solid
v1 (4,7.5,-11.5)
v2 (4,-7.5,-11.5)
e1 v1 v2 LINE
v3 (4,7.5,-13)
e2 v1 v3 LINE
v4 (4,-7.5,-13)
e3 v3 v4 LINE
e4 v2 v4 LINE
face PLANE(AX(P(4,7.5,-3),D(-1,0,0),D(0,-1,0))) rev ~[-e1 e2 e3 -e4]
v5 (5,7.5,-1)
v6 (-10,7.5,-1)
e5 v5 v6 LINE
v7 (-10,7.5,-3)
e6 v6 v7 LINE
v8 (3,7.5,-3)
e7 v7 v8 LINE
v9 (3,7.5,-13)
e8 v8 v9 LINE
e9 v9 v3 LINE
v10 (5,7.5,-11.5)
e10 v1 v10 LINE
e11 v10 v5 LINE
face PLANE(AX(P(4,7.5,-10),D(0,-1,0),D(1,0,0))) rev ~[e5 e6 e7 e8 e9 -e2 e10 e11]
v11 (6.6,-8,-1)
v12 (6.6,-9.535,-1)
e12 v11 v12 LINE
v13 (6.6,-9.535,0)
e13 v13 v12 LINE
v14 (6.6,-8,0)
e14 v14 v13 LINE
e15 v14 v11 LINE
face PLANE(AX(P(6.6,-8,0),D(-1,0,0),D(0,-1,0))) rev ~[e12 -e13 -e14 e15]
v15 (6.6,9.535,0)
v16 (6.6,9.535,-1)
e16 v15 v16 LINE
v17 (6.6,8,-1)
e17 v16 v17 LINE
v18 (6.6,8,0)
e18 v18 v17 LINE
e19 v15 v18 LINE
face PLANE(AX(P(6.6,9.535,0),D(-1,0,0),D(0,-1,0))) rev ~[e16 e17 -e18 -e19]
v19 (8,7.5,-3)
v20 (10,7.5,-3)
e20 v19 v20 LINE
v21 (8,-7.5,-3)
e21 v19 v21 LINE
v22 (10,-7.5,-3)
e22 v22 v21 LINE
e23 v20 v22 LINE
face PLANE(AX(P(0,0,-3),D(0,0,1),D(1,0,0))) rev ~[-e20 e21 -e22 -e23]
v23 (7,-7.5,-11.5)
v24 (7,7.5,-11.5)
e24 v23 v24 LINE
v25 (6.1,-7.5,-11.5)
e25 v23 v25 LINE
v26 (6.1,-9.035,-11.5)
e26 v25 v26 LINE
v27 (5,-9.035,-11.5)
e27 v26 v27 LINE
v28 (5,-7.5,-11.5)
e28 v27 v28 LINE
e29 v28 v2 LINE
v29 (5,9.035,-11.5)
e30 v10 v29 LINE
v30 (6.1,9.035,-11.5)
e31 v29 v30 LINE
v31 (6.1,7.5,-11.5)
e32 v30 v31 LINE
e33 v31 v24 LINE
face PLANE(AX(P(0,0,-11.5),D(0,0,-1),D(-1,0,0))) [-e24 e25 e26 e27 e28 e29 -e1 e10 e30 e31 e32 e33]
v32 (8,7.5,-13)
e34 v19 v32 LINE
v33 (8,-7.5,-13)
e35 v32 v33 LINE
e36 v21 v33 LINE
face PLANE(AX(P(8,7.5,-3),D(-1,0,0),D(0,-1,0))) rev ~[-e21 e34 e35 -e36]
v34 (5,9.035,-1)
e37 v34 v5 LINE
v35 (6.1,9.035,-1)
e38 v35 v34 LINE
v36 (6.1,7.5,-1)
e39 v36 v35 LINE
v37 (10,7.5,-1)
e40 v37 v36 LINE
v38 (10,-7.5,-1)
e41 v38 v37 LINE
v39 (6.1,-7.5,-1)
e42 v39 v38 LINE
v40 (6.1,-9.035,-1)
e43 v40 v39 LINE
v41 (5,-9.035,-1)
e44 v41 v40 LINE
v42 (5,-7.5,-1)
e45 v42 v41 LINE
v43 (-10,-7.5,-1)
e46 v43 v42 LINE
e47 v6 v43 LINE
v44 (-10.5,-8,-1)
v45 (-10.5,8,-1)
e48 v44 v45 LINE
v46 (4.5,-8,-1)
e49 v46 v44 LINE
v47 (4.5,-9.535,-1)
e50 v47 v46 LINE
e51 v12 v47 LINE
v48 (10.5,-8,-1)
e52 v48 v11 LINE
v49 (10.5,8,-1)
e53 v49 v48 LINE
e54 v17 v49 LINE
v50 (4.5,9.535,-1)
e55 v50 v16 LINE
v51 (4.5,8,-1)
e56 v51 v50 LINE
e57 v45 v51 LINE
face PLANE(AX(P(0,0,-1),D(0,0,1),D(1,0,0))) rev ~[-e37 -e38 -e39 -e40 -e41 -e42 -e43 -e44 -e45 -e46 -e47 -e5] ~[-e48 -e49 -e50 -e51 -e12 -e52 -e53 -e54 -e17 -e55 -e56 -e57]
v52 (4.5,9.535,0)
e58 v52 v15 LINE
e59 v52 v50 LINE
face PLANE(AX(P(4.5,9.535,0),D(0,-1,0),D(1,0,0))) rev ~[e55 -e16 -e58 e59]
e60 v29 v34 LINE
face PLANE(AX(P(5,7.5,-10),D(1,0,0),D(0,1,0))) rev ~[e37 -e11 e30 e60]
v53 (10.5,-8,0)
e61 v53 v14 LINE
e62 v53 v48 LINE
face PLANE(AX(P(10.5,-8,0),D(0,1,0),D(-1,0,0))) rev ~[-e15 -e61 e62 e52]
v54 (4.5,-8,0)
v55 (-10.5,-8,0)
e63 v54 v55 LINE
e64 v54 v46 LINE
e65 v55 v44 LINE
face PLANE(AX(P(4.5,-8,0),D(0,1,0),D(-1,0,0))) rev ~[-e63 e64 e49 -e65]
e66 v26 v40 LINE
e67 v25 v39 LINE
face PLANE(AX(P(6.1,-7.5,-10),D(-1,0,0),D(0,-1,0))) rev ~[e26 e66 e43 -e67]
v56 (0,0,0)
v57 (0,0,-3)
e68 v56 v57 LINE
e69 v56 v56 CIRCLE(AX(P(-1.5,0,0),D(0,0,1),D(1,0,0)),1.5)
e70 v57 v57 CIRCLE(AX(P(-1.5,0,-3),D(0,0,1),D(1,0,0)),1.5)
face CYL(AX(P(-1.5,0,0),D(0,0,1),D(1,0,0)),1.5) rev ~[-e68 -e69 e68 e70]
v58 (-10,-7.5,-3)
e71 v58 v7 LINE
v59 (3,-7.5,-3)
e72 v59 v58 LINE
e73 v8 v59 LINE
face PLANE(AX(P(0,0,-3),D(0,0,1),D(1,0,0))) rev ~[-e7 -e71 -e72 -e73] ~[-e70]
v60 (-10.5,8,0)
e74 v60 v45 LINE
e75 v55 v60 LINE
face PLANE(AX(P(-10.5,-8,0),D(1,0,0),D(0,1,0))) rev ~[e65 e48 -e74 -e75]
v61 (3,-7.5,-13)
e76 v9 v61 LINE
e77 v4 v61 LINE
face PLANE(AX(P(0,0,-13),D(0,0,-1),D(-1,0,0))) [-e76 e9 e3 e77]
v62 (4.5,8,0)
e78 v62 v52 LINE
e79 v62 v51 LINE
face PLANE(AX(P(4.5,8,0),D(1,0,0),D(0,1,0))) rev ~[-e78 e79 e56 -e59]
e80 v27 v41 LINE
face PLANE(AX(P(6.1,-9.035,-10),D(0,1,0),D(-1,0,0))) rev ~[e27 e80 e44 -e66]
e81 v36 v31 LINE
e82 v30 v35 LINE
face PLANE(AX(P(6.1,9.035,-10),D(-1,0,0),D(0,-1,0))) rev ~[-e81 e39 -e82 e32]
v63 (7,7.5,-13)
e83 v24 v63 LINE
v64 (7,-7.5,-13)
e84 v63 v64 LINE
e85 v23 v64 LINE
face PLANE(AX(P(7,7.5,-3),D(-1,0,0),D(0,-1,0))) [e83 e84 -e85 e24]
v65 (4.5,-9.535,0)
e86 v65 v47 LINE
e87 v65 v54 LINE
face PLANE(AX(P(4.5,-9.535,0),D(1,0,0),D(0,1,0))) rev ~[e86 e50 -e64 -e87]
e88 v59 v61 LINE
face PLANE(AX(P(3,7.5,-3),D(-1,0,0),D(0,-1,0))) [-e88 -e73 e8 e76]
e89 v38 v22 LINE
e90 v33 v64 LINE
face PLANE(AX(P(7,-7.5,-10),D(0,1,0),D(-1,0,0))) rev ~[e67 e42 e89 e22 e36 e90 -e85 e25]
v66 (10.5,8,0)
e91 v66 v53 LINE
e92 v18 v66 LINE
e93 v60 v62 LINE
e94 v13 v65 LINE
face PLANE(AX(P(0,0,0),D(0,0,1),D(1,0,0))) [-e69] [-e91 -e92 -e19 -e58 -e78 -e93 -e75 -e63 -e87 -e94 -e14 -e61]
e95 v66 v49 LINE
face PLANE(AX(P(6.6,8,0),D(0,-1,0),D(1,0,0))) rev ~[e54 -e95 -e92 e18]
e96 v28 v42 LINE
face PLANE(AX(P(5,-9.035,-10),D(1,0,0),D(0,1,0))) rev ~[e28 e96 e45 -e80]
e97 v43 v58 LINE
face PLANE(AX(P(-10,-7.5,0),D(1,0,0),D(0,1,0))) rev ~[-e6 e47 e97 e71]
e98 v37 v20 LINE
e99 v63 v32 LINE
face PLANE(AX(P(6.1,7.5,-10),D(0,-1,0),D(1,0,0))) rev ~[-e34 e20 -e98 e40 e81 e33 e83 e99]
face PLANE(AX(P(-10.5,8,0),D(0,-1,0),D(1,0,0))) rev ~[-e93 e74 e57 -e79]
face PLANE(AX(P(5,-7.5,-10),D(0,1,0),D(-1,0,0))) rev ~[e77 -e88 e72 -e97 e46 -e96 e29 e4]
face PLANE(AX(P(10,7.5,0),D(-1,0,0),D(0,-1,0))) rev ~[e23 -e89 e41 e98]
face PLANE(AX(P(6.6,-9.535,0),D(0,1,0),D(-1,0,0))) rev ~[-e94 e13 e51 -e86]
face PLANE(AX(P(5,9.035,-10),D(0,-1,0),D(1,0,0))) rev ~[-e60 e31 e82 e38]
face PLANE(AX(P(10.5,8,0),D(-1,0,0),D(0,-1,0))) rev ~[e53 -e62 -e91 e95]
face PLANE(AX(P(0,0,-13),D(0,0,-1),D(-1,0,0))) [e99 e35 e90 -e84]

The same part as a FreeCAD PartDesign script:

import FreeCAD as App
import Part
import Sketcher
Q = App.Units.Quantity

doc = App.newDocument("Part")
params = doc.addObject("Spreadsheet::Sheet", "Params")
for row, (alias, value) in enumerate([
    ("sketch1_diameter", "3 mm"),
    ("sketch1_width", "20 mm"),
    ("sketch1_height", "15 mm"),
    ("pad1_length", "3 mm"),
    ("sketch2_width", "1 mm"),
    ("sketch2_height", "15 mm"),
    ("pad2_length", "10 mm"),
    ("sketch3_width", "3 mm"),
    ("sketch3_height", "15 mm"),
    ("pad3_length", "7 mm"),
    ("sketch4_width", "1.1 mm"),
    ("sketch4_height", "18.07 mm"),
    ("pad4_length", "10 mm"),
    ("sketch5_width", "15 mm"),
    ("sketch5_width2", "3.9 mm"),
    ("sketch5_width3", "2.1 mm"),
    ("pad5_length", "1 mm"),
    ("sketch6_width", "1 mm"),
    ("sketch6_height", "15 mm"),
    ("sketch6_width2", "0.9 mm"),
    ("sketch6_width3", "1.1 mm"),
    ("pad6_length", "1.5 mm"),
], start=1):
    params.set(f"A{row}", alias)
    params.set(f"B{row}", "=" + value)
    params.setAlias(f"B{row}", alias)

body = doc.addObject("PartDesign::Body", "Body")

# Sketch on XY plane
sketch1 = body.newObject("Sketcher::SketchObject", "Sketch")
sketch1.AttachmentSupport = (doc.getObject("XY_Plane"), [""])
sketch1.MapMode = "FlatFace"
sketch1.addGeometry([
    Part.LineSegment(App.Vector(10, 7.5, 0), App.Vector(-10, 7.5, 0)),  # 0
    Part.LineSegment(App.Vector(-10, 7.5, 0), App.Vector(-10, -7.5, 0)),  # 1
    Part.LineSegment(App.Vector(-10, -7.5, 0), App.Vector(10, -7.5, 0)),  # 2
    Part.LineSegment(App.Vector(10, -7.5, 0), App.Vector(10, 7.5, 0)),  # 3
    Part.Circle(App.Vector(-1.5, 0, 0), App.Vector(0, 0, 1), 1.5),  # 4
], False)
sketch1.addConstraint([
    Sketcher.Constraint("Coincident", 0, 2, 1, 1),
    Sketcher.Constraint("Coincident", 1, 2, 2, 1),
    Sketcher.Constraint("Coincident", 2, 2, 3, 1),
    Sketcher.Constraint("Coincident", 3, 2, 0, 1),
    Sketcher.Constraint("Horizontal", 0),
    Sketcher.Constraint("Vertical", 1),
    Sketcher.Constraint("Horizontal", 2),
    Sketcher.Constraint("Vertical", 3),
    Sketcher.Constraint("Symmetric", 0, 2, 2, 2, -1, 1),
    Sketcher.Constraint("PointOnObject", 4, 3, -1),
    Sketcher.Constraint("Diameter", 4, Q("3 mm")),
    Sketcher.Constraint("DistanceX", 0, 2, 0, 1, Q("20 mm")),
    Sketcher.Constraint("DistanceY", 1, 2, 1, 1, Q("15 mm")),
    Sketcher.Constraint("DistanceX", 4, 3, -1, 1, Q("1.5 mm")),
])
sketch1.setExpression("Constraints[10]", "Params.sketch1_diameter")
sketch1.setExpression("Constraints[11]", "Params.sketch1_width")
sketch1.setExpression("Constraints[12]", "Params.sketch1_height")
pad1 = body.newObject("PartDesign::Pad", "Pad")
pad1.Profile = sketch1
pad1.setExpression("Length", "Params.pad1_length")
pad1.Reversed = True

# Sketch on XY plane
sketch2 = body.newObject("Sketcher::SketchObject", "Sketch001")
sketch2.AttachmentSupport = (doc.getObject("XY_Plane"), [""])
sketch2.MapMode = "FlatFace"
sketch2.AttachmentOffset = App.Placement(App.Vector(0, 0, -3), App.Rotation())
sketch2.addGeometry([
    Part.LineSegment(App.Vector(3, -7.5, 0), App.Vector(3, 7.5, 0)),  # 0
    Part.LineSegment(App.Vector(3, 7.5, 0), App.Vector(4, 7.5, 0)),  # 1
    Part.LineSegment(App.Vector(4, 7.5, 0), App.Vector(4, -7.5, 0)),  # 2
    Part.LineSegment(App.Vector(4, -7.5, 0), App.Vector(3, -7.5, 0)),  # 3
    Part.LineSegment(App.Vector(7, -7.5, 0), App.Vector(7, 7.5, 0)),  # 4
    Part.LineSegment(App.Vector(7, 7.5, 0), App.Vector(8, 7.5, 0)),  # 5
    Part.LineSegment(App.Vector(8, 7.5, 0), App.Vector(8, -7.5, 0)),  # 6
    Part.LineSegment(App.Vector(8, -7.5, 0), App.Vector(7, -7.5, 0)),  # 7
], False)
sketch2.addConstraint([
    Sketcher.Constraint("Coincident", 0, 2, 1, 1),
    Sketcher.Constraint("Coincident", 1, 2, 2, 1),
    Sketcher.Constraint("Coincident", 2, 2, 3, 1),
    Sketcher.Constraint("Coincident", 3, 2, 0, 1),
    Sketcher.Constraint("Coincident", 4, 2, 5, 1),
    Sketcher.Constraint("Coincident", 5, 2, 6, 1),
    Sketcher.Constraint("Coincident", 6, 2, 7, 1),
    Sketcher.Constraint("Coincident", 7, 2, 4, 1),
    Sketcher.Constraint("Vertical", 0),
    Sketcher.Constraint("Horizontal", 1),
    Sketcher.Constraint("Vertical", 2),
    Sketcher.Constraint("Horizontal", 3),
    Sketcher.Constraint("Vertical", 4),
    Sketcher.Constraint("Horizontal", 5),
    Sketcher.Constraint("Vertical", 6),
    Sketcher.Constraint("Horizontal", 7),
    Sketcher.Constraint("Horizontal", 1, 2, 4, 2),
    Sketcher.Constraint("Horizontal", 3, 2, 6, 2),
    Sketcher.Constraint("Equal", 3, 5),
    Sketcher.Constraint("DistanceX", 1, 1, 1, 2, Q("1 mm")),
    Sketcher.Constraint("DistanceX", -1, 1, 0, 2, Q("3 mm")),
    Sketcher.Constraint("DistanceX", -1, 1, 4, 2, Q("7 mm")),
    Sketcher.Constraint("DistanceY", 0, 1, 0, 2, Q("15 mm")),
    Sketcher.Constraint("DistanceY", -1, 1, 0, 2, Q("7.5 mm")),
])
sketch2.setExpression("Constraints[19]", "Params.sketch2_width")
sketch2.setExpression("Constraints[22]", "Params.sketch2_height")
pad2 = body.newObject("PartDesign::Pad", "Pad001")
pad2.Profile = sketch2
pad2.setExpression("Length", "Params.pad2_length")
pad2.Reversed = True

# Sketch on XY plane
sketch3 = body.newObject("Sketcher::SketchObject", "Sketch002")
sketch3.AttachmentSupport = (doc.getObject("XY_Plane"), [""])
sketch3.MapMode = "FlatFace"
sketch3.AttachmentOffset = App.Placement(App.Vector(0, 0, -3), App.Rotation())
sketch3.addGeometry([
    Part.LineSegment(App.Vector(4, 7.5, 0), App.Vector(7, 7.5, 0)),
    Part.LineSegment(App.Vector(7, 7.5, 0), App.Vector(7, -7.5, 0)),
    Part.LineSegment(App.Vector(7, -7.5, 0), App.Vector(4, -7.5, 0)),
    Part.LineSegment(App.Vector(4, -7.5, 0), App.Vector(4, 7.5, 0)),
], False)
sketch3.addConstraint([
    Sketcher.Constraint("Coincident", 0, 2, 1, 1),
    Sketcher.Constraint("Coincident", 1, 2, 2, 1),
    Sketcher.Constraint("Coincident", 2, 2, 3, 1),
    Sketcher.Constraint("Coincident", 3, 2, 0, 1),
    Sketcher.Constraint("Horizontal", 0),
    Sketcher.Constraint("Vertical", 1),
    Sketcher.Constraint("Horizontal", 2),
    Sketcher.Constraint("Vertical", 3),
    Sketcher.Constraint("DistanceX", 0, 1, 0, 2, Q("3 mm")),
    Sketcher.Constraint("DistanceY", 1, 2, 1, 1, Q("15 mm")),
    Sketcher.Constraint("DistanceX", -1, 1, 0, 2, Q("7 mm")),
    Sketcher.Constraint("DistanceY", -1, 1, 0, 2, Q("7.5 mm")),
])
sketch3.setExpression("Constraints[8]", "Params.sketch3_width")
sketch3.setExpression("Constraints[9]", "Params.sketch3_height")
pad3 = body.newObject("PartDesign::Pad", "Pad002")
pad3.Profile = sketch3
pad3.setExpression("Length", "Params.pad3_length")
pad3.Reversed = True

# Sketch on XY plane
sketch4 = body.newObject("Sketcher::SketchObject", "Sketch003")
sketch4.AttachmentSupport = (doc.getObject("XY_Plane"), [""])
sketch4.MapMode = "FlatFace"
sketch4.AttachmentOffset = App.Placement(App.Vector(0, 0, -10), App.Rotation())
sketch4.addGeometry([
    Part.LineSegment(App.Vector(6.1, -9, 0), App.Vector(5, -9, 0)),
    Part.LineSegment(App.Vector(5, -9, 0), App.Vector(5, 9, 0)),
    Part.LineSegment(App.Vector(5, 9, 0), App.Vector(6.1, 9, 0)),
    Part.LineSegment(App.Vector(6.1, 9, 0), App.Vector(6.1, -9, 0)),
], False)
sketch4.addConstraint([
    Sketcher.Constraint("Coincident", 0, 2, 1, 1),
    Sketcher.Constraint("Coincident", 1, 2, 2, 1),
    Sketcher.Constraint("Coincident", 2, 2, 3, 1),
    Sketcher.Constraint("Coincident", 3, 2, 0, 1),
    Sketcher.Constraint("Horizontal", 0),
    Sketcher.Constraint("Vertical", 1),
    Sketcher.Constraint("Horizontal", 2),
    Sketcher.Constraint("Vertical", 3),
    Sketcher.Constraint("DistanceX", 0, 2, 0, 1, Q("1.1 mm")),
    Sketcher.Constraint("DistanceX", -1, 1, 0, 2, Q("5 mm")),
    Sketcher.Constraint("DistanceY", 1, 1, 1, 2, Q("18.07 mm")),
    Sketcher.Constraint("DistanceY", 0, 2, -1, 1, Q("9.035 mm")),
])
sketch4.setExpression("Constraints[8]", "Params.sketch4_width")
sketch4.setExpression("Constraints[10]", "Params.sketch4_height")
pad4 = body.newObject("PartDesign::Pad", "Pad003")
pad4.Profile = sketch4
pad4.setExpression("Length", "Params.pad4_length")

# Sketch on XY plane
sketch5 = body.newObject("Sketcher::SketchObject", "Sketch004")
sketch5.AttachmentSupport = (doc.getObject("XY_Plane"), [""])
sketch5.MapMode = "FlatFace"
sketch5.addGeometry([
    Part.LineSegment(App.Vector(10.5, -8, 0), App.Vector(10.5, 8, 0)),  # 0
    Part.LineSegment(App.Vector(10.5, 8, 0), App.Vector(6.6, 8, 0)),  # 1
    Part.LineSegment(App.Vector(6.6, 8, 0), App.Vector(6.6, 9.5, 0)),  # 2
    Part.LineSegment(App.Vector(6.6, 9.5, 0), App.Vector(4.5, 9.5, 0)),  # 3
    Part.LineSegment(App.Vector(4.5, 9.5, 0), App.Vector(4.5, 8, 0)),  # 4
    Part.LineSegment(App.Vector(4.5, 8, 0), App.Vector(-10.5, 8, 0)),  # 5
    Part.LineSegment(App.Vector(-10.5, 8, 0), App.Vector(-10.5, -8, 0)),  # 6
    Part.LineSegment(App.Vector(-10.5, -8, 0), App.Vector(4.5, -8, 0)),  # 7
    Part.LineSegment(App.Vector(4.5, -8, 0), App.Vector(4.5, -9.5, 0)),  # 8
    Part.LineSegment(App.Vector(4.5, -9.5, 0), App.Vector(6.6, -9.5, 0)),  # 9
    Part.LineSegment(App.Vector(6.6, -9.5, 0), App.Vector(6.6, -8, 0)),  # 10
    Part.LineSegment(App.Vector(6.6, -8, 0), App.Vector(10.5, -8, 0)),  # 11
    Part.LineSegment(App.Vector(10, -7.5, 0), App.Vector(6.1, -7.5, 0)),  # 12
    Part.LineSegment(App.Vector(6.1, -7.5, 0), App.Vector(6.1, -9, 0)),  # 13
    Part.LineSegment(App.Vector(6.1, -9, 0), App.Vector(5, -9, 0)),  # 14
    Part.LineSegment(App.Vector(5, -9, 0), App.Vector(5, -7.5, 0)),  # 15
    Part.LineSegment(App.Vector(5, -7.5, 0), App.Vector(-10, -7.5, 0)),  # 16
    Part.LineSegment(App.Vector(-10, -7.5, 0), App.Vector(-10, 7.5, 0)),  # 17
    Part.LineSegment(App.Vector(-10, 7.5, 0), App.Vector(5, 7.5, 0)),  # 18
    Part.LineSegment(App.Vector(5, 7.5, 0), App.Vector(5, 9, 0)),  # 19
    Part.LineSegment(App.Vector(5, 9, 0), App.Vector(6.1, 9, 0)),  # 20
    Part.LineSegment(App.Vector(6.1, 9, 0), App.Vector(6.1, 7.5, 0)),  # 21
    Part.LineSegment(App.Vector(6.1, 7.5, 0), App.Vector(10, 7.5, 0)),  # 22
    Part.LineSegment(App.Vector(10, 7.5, 0), App.Vector(10, -7.5, 0)),  # 23
], False)
sketch5.addConstraint([
    Sketcher.Constraint("Coincident", 0, 2, 1, 1),
    Sketcher.Constraint("Coincident", 1, 2, 2, 1),
    Sketcher.Constraint("Coincident", 2, 2, 3, 1),
    Sketcher.Constraint("Coincident", 3, 2, 4, 1),
    Sketcher.Constraint("Coincident", 4, 2, 5, 1),
    Sketcher.Constraint("Coincident", 5, 2, 6, 1),
    Sketcher.Constraint("Coincident", 6, 2, 7, 1),
    Sketcher.Constraint("Coincident", 7, 2, 8, 1),
    Sketcher.Constraint("Coincident", 8, 2, 9, 1),
    Sketcher.Constraint("Coincident", 9, 2, 10, 1),
    Sketcher.Constraint("Coincident", 10, 2, 11, 1),
    Sketcher.Constraint("Coincident", 11, 2, 0, 1),
    Sketcher.Constraint("Coincident", 12, 2, 13, 1),
    Sketcher.Constraint("Coincident", 13, 2, 14, 1),
    Sketcher.Constraint("Coincident", 14, 2, 15, 1),
    Sketcher.Constraint("Coincident", 15, 2, 16, 1),
    Sketcher.Constraint("Coincident", 16, 2, 17, 1),
    Sketcher.Constraint("Coincident", 17, 2, 18, 1),
    Sketcher.Constraint("Coincident", 18, 2, 19, 1),
    Sketcher.Constraint("Coincident", 19, 2, 20, 1),
    Sketcher.Constraint("Coincident", 20, 2, 21, 1),
    Sketcher.Constraint("Coincident", 21, 2, 22, 1),
    Sketcher.Constraint("Coincident", 22, 2, 23, 1),
    Sketcher.Constraint("Coincident", 23, 2, 12, 1),
    Sketcher.Constraint("Vertical", 0),
    Sketcher.Constraint("Horizontal", 1),
    Sketcher.Constraint("Vertical", 2),
    Sketcher.Constraint("Horizontal", 3),
    Sketcher.Constraint("Vertical", 4),
    Sketcher.Constraint("Horizontal", 5),
    Sketcher.Constraint("Vertical", 6),
    Sketcher.Constraint("Horizontal", 7),
    Sketcher.Constraint("Vertical", 8),
    Sketcher.Constraint("Horizontal", 9),
    Sketcher.Constraint("Vertical", 10),
    Sketcher.Constraint("Horizontal", 11),
    Sketcher.Constraint("Horizontal", 12),
    Sketcher.Constraint("Vertical", 13),
    Sketcher.Constraint("Horizontal", 14),
    Sketcher.Constraint("Vertical", 15),
    Sketcher.Constraint("Horizontal", 16),
    Sketcher.Constraint("Vertical", 17),
    Sketcher.Constraint("Horizontal", 18),
    Sketcher.Constraint("Vertical", 19),
    Sketcher.Constraint("Horizontal", 20),
    Sketcher.Constraint("Vertical", 21),
    Sketcher.Constraint("Horizontal", 22),
    Sketcher.Constraint("Vertical", 23),
    Sketcher.Constraint("Symmetric", 0, 2, 6, 2, -1, 1),
    Sketcher.Constraint("Symmetric", 16, 2, 22, 2, -1, 1),
    Sketcher.Constraint("Symmetric", 4, 2, 7, 2, -1),
    Sketcher.Constraint("Symmetric", 2, 2, 9, 2, -1),
    Sketcher.Constraint("Symmetric", 15, 2, 18, 2, -1),
    Sketcher.Constraint("Symmetric", 13, 2, 20, 2, -1),
    Sketcher.Constraint("Horizontal", 7, 2, 10, 2),
    Sketcher.Constraint("Horizontal", 12, 2, 15, 2),
    Sketcher.Constraint("Equal", 11, 12),
    Sketcher.Constraint("Equal", 7, 16),
    Sketcher.Constraint("Equal", 10, 13),
    Sketcher.Constraint("Equal", 18, 17),
    Sketcher.Constraint("DistanceX", 12, 2, 10, 2, Q("0.5 mm")),
    Sketcher.Constraint("DistanceY", 10, 2, 12, 2, Q("0.5 mm")),
    Sketcher.Constraint("DistanceX", 5, 2, 5, 1, Q("15 mm")),
    Sketcher.Constraint("DistanceX", 1, 2, 1, 1, Q("3.9 mm")),
    Sketcher.Constraint("DistanceX", 3, 2, 3, 1, Q("2.1 mm")),
    Sketcher.Constraint("DistanceY", 2, 1, 2, 2, Q("1.535 mm")),
])
sketch5.setExpression("Constraints[62]", "Params.sketch5_width")
sketch5.setExpression("Constraints[63]", "Params.sketch5_width2")
sketch5.setExpression("Constraints[64]", "Params.sketch5_width3")
pad5 = body.newObject("PartDesign::Pad", "Pad004")
pad5.Profile = sketch5
pad5.setExpression("Length", "Params.pad5_length")
pad5.Reversed = True

# Sketch on XY plane
sketch6 = body.newObject("Sketcher::SketchObject", "Sketch005")
sketch6.AttachmentSupport = (doc.getObject("XY_Plane"), [""])
sketch6.MapMode = "FlatFace"
sketch6.AttachmentOffset = App.Placement(App.Vector(0, 0, -10), App.Rotation())
sketch6.addGeometry([
    Part.LineSegment(App.Vector(6.1, 9, 0), App.Vector(6.1, 7.5, 0)),  # 0
    Part.LineSegment(App.Vector(6.1, 7.5, 0), App.Vector(7, 7.5, 0)),  # 1
    Part.LineSegment(App.Vector(7, 7.5, 0), App.Vector(7, -7.5, 0)),  # 2
    Part.LineSegment(App.Vector(7, -7.5, 0), App.Vector(6.1, -7.5, 0)),  # 3
    Part.LineSegment(App.Vector(6.1, -7.5, 0), App.Vector(6.1, -9, 0)),  # 4
    Part.LineSegment(App.Vector(6.1, -9, 0), App.Vector(5, -9, 0)),  # 5
    Part.LineSegment(App.Vector(5, -9, 0), App.Vector(5, -7.5, 0)),  # 6
    Part.LineSegment(App.Vector(5, -7.5, 0), App.Vector(4, -7.5, 0)),  # 7
    Part.LineSegment(App.Vector(4, -7.5, 0), App.Vector(4, 7.5, 0)),  # 8
    Part.LineSegment(App.Vector(4, 7.5, 0), App.Vector(5, 7.5, 0)),  # 9
    Part.LineSegment(App.Vector(5, 7.5, 0), App.Vector(5, 9, 0)),  # 10
    Part.LineSegment(App.Vector(5, 9, 0), App.Vector(6.1, 9, 0)),  # 11
], False)
sketch6.addConstraint([
    Sketcher.Constraint("Coincident", 0, 2, 1, 1),
    Sketcher.Constraint("Coincident", 1, 2, 2, 1),
    Sketcher.Constraint("Coincident", 2, 2, 3, 1),
    Sketcher.Constraint("Coincident", 3, 2, 4, 1),
    Sketcher.Constraint("Coincident", 4, 2, 5, 1),
    Sketcher.Constraint("Coincident", 5, 2, 6, 1),
    Sketcher.Constraint("Coincident", 6, 2, 7, 1),
    Sketcher.Constraint("Coincident", 7, 2, 8, 1),
    Sketcher.Constraint("Coincident", 8, 2, 9, 1),
    Sketcher.Constraint("Coincident", 9, 2, 10, 1),
    Sketcher.Constraint("Coincident", 10, 2, 11, 1),
    Sketcher.Constraint("Coincident", 11, 2, 0, 1),
    Sketcher.Constraint("Vertical", 0),
    Sketcher.Constraint("Horizontal", 1),
    Sketcher.Constraint("Vertical", 2),
    Sketcher.Constraint("Horizontal", 3),
    Sketcher.Constraint("Vertical", 4),
    Sketcher.Constraint("Horizontal", 5),
    Sketcher.Constraint("Vertical", 6),
    Sketcher.Constraint("Horizontal", 7),
    Sketcher.Constraint("Vertical", 8),
    Sketcher.Constraint("Horizontal", 9),
    Sketcher.Constraint("Vertical", 10),
    Sketcher.Constraint("Horizontal", 11),
    Sketcher.Constraint("Symmetric", 0, 2, 3, 2, -1),
    Sketcher.Constraint("Symmetric", 6, 2, 9, 2, -1),
    Sketcher.Constraint("Horizontal", 3, 2, 6, 2),
    Sketcher.Constraint("Equal", 0, 4),
    Sketcher.Constraint("DistanceX", 7, 2, 7, 1, Q("1 mm")),
    Sketcher.Constraint("DistanceY", 2, 2, 2, 1, Q("15 mm")),
    Sketcher.Constraint("DistanceX", 1, 1, 1, 2, Q("0.9 mm")),
    Sketcher.Constraint("DistanceX", 5, 2, 5, 1, Q("1.1 mm")),
    Sketcher.Constraint("DistanceX", -1, 1, 1, 2, Q("7 mm")),
    Sketcher.Constraint("DistanceY", 0, 2, 0, 1, Q("1.535 mm")),
])
sketch6.setExpression("Constraints[28]", "Params.sketch6_width")
sketch6.setExpression("Constraints[29]", "Params.sketch6_height")
sketch6.setExpression("Constraints[30]", "Params.sketch6_width2")
sketch6.setExpression("Constraints[31]", "Params.sketch6_width3")
pad6 = body.newObject("PartDesign::Pad", "Pad005")
pad6.Profile = sketch6
pad6.setExpression("Length", "Params.pad6_length")
pad6.Reversed = True

doc.recompute()
